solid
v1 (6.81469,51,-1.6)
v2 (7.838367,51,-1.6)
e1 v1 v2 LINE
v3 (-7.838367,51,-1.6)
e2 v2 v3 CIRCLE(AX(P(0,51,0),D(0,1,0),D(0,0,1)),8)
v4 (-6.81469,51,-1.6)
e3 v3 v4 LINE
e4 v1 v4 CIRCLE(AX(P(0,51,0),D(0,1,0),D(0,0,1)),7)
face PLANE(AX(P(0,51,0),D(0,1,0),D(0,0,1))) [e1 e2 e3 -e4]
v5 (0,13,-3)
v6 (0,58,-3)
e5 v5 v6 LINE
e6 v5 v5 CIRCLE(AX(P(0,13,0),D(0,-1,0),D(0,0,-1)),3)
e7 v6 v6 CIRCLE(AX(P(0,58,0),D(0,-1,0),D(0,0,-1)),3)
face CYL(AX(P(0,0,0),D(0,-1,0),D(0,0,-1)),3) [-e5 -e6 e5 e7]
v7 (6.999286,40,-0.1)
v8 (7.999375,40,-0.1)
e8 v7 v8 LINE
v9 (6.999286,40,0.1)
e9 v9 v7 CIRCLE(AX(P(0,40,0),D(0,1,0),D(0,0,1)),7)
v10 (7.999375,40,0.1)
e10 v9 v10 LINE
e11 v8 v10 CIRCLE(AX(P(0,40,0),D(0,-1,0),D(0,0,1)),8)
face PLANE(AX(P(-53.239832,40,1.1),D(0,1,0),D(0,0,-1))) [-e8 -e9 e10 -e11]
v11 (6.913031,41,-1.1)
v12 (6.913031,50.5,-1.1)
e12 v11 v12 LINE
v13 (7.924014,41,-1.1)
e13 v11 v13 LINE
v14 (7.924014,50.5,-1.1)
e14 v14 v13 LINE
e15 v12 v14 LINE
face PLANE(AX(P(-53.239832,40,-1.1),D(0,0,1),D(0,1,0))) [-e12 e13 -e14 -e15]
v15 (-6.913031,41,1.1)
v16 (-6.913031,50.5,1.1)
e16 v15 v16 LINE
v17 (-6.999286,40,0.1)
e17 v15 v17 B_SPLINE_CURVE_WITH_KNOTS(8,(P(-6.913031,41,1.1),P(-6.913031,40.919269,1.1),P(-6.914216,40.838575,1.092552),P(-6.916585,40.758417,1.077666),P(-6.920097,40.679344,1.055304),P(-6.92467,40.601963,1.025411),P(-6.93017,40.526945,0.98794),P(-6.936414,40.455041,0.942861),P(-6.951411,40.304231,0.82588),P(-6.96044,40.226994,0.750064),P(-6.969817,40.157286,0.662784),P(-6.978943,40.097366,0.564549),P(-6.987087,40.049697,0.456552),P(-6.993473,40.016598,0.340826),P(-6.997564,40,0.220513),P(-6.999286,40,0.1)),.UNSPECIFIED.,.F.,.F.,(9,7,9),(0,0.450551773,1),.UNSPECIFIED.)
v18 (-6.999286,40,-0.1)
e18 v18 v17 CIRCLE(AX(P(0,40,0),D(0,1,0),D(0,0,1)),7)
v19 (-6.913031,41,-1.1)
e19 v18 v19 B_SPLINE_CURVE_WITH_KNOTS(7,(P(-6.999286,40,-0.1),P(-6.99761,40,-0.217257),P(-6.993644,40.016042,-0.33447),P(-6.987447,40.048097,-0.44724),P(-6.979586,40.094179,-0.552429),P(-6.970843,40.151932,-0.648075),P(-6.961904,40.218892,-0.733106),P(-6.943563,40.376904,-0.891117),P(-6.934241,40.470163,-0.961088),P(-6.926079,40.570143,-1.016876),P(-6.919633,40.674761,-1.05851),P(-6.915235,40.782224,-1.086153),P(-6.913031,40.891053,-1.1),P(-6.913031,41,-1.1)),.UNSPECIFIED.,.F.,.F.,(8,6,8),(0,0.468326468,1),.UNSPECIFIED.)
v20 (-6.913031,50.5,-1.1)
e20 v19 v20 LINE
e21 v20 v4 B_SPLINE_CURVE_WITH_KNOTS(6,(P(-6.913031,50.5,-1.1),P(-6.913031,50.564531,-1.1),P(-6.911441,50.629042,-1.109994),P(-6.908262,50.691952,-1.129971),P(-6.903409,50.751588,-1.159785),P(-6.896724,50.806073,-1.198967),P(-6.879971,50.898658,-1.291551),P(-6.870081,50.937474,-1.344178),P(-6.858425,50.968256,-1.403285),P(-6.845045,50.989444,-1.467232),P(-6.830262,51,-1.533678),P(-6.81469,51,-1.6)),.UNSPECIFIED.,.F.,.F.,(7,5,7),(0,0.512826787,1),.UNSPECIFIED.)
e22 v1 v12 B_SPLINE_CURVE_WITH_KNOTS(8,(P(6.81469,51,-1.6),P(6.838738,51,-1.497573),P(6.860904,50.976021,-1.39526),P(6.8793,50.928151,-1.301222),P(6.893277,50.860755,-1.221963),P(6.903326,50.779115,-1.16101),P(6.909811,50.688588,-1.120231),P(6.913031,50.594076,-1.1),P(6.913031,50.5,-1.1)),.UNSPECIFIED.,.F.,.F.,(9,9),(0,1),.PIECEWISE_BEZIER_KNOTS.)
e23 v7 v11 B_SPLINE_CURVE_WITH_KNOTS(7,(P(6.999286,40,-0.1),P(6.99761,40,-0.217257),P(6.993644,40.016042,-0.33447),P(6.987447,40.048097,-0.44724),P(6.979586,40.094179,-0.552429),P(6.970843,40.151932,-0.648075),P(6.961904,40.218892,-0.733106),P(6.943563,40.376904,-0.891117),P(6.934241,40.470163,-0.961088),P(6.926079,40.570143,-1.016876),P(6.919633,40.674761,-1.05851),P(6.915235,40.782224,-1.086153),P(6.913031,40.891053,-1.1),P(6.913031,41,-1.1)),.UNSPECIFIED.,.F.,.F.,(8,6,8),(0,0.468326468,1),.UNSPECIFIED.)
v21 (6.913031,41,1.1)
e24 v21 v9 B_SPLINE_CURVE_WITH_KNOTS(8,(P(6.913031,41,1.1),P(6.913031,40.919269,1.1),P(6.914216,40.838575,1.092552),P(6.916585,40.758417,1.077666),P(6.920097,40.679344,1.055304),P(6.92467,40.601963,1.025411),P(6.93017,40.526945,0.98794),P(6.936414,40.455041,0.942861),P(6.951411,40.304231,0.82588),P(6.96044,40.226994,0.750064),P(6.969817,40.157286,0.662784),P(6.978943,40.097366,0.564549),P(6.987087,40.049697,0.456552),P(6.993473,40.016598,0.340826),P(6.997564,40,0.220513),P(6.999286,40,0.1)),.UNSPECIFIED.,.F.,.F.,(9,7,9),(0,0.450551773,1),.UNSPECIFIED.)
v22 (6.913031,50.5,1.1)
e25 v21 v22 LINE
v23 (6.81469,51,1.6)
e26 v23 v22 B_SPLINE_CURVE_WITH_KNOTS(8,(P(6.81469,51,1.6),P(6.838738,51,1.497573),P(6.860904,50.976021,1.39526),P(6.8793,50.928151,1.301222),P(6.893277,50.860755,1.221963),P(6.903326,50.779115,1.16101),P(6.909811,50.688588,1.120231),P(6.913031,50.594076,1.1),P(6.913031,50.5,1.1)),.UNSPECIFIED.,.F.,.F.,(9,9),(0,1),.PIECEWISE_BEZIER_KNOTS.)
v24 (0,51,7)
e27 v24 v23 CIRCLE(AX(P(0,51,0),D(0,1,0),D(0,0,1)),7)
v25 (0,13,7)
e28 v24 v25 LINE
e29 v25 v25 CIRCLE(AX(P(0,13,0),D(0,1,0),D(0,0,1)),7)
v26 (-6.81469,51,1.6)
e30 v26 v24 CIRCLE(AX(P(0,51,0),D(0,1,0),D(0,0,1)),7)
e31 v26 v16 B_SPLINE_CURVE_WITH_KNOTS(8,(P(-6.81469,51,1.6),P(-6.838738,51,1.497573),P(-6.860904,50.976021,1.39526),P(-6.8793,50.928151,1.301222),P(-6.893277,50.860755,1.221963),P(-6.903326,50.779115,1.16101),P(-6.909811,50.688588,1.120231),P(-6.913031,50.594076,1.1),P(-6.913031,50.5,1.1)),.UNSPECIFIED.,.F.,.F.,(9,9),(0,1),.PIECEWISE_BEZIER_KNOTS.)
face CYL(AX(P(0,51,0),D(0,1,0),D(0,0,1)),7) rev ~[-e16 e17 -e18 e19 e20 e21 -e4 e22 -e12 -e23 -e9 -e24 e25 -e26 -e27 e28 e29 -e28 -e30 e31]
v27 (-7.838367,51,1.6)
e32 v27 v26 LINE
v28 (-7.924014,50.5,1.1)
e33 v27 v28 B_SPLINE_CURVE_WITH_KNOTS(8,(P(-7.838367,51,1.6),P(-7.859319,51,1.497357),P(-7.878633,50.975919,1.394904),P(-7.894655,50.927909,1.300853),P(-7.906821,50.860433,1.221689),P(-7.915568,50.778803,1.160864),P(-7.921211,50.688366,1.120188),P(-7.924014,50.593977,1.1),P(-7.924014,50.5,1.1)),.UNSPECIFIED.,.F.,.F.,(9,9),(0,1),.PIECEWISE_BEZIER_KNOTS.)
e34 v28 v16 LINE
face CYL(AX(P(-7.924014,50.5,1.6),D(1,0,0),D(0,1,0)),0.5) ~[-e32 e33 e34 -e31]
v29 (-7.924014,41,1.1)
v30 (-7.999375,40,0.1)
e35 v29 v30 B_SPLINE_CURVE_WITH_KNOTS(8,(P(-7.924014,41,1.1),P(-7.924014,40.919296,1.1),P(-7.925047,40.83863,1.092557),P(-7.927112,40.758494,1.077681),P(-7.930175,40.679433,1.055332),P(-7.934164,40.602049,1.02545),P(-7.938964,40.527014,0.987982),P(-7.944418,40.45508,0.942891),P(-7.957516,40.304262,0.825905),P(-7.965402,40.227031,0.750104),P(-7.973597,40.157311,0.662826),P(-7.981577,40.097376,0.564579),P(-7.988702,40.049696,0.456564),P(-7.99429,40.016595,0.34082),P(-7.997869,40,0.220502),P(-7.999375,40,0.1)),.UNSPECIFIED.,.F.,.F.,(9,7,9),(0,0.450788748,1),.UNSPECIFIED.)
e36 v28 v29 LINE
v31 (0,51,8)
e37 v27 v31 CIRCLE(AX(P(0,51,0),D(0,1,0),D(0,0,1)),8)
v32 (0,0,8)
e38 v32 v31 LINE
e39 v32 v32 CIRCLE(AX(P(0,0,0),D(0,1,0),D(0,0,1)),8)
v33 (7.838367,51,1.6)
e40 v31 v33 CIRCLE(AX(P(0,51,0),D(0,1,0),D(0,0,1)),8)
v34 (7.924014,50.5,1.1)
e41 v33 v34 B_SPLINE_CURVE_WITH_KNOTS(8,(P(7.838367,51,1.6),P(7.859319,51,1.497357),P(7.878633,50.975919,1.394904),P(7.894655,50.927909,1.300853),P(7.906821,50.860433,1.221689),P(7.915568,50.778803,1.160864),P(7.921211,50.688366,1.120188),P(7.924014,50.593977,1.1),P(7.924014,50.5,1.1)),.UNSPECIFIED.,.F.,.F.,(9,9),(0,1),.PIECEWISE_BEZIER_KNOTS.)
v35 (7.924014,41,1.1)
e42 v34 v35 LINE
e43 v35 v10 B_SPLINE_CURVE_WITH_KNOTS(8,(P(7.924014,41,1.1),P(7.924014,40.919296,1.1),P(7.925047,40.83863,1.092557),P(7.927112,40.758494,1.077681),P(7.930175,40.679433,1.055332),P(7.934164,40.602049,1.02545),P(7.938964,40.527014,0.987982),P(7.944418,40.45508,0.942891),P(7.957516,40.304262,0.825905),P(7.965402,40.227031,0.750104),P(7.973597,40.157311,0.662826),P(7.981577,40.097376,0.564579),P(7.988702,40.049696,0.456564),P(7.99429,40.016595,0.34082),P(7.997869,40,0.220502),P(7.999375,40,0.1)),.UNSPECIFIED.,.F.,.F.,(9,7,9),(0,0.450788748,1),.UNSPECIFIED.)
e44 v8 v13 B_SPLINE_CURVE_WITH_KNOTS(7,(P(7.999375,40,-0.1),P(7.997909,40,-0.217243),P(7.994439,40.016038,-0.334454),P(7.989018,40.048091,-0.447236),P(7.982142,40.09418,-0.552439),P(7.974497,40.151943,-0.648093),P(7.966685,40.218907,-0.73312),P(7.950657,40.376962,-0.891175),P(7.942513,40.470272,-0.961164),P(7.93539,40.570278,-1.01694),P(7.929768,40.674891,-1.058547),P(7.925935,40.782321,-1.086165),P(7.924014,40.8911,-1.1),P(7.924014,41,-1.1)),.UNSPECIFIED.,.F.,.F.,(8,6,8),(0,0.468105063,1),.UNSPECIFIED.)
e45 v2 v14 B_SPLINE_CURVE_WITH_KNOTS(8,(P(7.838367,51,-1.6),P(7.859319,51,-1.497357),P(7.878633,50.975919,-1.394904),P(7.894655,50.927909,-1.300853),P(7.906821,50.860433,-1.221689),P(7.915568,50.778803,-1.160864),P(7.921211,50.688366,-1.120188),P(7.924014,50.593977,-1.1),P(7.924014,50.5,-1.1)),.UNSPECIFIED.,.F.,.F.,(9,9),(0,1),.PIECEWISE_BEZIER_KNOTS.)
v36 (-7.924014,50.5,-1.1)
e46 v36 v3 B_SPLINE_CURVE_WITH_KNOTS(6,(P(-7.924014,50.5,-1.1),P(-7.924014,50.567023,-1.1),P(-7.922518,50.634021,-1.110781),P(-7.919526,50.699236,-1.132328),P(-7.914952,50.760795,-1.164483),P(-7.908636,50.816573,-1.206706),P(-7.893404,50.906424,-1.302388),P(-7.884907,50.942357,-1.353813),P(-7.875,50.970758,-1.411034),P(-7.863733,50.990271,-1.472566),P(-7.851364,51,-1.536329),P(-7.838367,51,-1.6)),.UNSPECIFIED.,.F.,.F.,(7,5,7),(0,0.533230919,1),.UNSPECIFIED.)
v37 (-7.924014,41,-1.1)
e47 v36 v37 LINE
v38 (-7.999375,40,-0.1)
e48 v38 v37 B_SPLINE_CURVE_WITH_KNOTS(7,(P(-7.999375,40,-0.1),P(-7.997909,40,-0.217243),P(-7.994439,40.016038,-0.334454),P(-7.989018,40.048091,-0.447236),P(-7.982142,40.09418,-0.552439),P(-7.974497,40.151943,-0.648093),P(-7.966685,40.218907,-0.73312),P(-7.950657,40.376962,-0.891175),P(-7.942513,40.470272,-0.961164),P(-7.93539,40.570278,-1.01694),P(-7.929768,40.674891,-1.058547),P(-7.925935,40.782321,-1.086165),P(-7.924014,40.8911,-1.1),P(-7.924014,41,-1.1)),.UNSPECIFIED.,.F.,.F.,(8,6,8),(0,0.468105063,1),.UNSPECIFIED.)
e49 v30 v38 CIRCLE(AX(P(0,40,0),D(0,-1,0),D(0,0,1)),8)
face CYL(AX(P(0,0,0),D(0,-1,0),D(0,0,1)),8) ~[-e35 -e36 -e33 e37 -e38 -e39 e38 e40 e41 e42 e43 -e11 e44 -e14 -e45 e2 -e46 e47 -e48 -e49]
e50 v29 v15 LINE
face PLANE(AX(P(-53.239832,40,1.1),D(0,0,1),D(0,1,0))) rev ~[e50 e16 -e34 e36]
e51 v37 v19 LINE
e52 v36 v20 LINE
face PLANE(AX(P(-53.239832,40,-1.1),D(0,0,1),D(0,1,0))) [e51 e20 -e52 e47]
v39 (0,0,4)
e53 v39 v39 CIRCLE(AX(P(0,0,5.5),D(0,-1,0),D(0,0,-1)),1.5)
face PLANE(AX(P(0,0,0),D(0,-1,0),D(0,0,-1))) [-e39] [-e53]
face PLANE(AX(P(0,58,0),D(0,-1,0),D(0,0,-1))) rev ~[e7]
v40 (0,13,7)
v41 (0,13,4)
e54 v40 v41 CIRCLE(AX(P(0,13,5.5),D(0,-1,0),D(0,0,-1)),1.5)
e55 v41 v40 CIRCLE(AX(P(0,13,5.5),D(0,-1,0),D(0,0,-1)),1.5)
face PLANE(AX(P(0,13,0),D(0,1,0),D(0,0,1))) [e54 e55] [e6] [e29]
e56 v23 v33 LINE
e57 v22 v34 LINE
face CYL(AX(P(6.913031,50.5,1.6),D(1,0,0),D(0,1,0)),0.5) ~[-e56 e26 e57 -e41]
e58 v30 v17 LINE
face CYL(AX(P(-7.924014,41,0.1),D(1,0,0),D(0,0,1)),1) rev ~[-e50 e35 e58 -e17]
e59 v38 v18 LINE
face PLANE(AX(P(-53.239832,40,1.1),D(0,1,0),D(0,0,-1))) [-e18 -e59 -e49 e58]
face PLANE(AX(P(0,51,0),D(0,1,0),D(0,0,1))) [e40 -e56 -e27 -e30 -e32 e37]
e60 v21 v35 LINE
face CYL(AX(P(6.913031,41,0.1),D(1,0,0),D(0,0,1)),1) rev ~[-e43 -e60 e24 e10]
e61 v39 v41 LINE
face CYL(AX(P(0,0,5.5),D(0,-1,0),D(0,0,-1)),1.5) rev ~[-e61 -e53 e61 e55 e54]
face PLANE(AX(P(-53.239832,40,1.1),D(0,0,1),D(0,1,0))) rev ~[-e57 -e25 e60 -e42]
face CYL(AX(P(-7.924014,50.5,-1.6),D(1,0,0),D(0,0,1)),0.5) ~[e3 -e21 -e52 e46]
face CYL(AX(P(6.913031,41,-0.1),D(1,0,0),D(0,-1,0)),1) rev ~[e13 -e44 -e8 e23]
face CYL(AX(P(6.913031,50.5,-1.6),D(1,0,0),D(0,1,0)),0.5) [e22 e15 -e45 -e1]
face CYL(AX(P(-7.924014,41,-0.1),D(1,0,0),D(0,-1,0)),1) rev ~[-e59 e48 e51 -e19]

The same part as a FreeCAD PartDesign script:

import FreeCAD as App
import Part
import Sketcher
Q = App.Units.Quantity


def edges_at(feature, points):
    """Names of the edges that pass closest to the given points."""
    edges = feature.Shape.Edges
    near = lambda p: min(range(len(edges)), key=lambda i: edges[i].distToShape(Part.Vertex(*p))[0])
    return sorted({f"Edge{near(p) + 1}" for p in points})

doc = App.newDocument("Part")
body = doc.addObject("PartDesign::Body", "Body")

# Sketch on XZ plane
sketch1 = body.newObject("Sketcher::SketchObject", "Sketch")
sketch1.AttachmentSupport = (doc.getObject("XZ_Plane"), [""])
sketch1.MapMode = "FlatFace"
sketch1.addGeometry(Part.Circle(App.Vector(0, 0, 0), App.Vector(0, 0, 1), 8), False)
sketch1.addConstraint(Sketcher.Constraint("Coincident", 0, 3, -1, 1))
sketch1.addConstraint(Sketcher.Constraint("Diameter", 0, Q("16 mm")))
pad1 = body.newObject("PartDesign::Pad", "Pad")
pad1.Profile = sketch1
pad1.Length = 51
pad1.Reversed = True

# Sketch on XZ plane
sketch2 = body.newObject("Sketcher::SketchObject", "Sketch001")
sketch2.AttachmentSupport = (doc.getObject("XZ_Plane"), [""])
sketch2.MapMode = "FlatFace"
sketch2.AttachmentOffset = App.Placement(App.Vector(0, 0, -51), App.Rotation())
sketch2.addGeometry(Part.Circle(App.Vector(0, 0, 0), App.Vector(0, 0, 1), 7), False)
sketch2.addConstraint(Sketcher.Constraint("Coincident", 0, 3, -1, 1))
sketch2.addConstraint(Sketcher.Constraint("Diameter", 0, Q("14 mm")))
pocket1 = body.newObject("PartDesign::Pocket", "Pocket")
pocket1.Profile = sketch2
pocket1.Length = 38
pocket1.Reversed = True

# Sketch on YZ plane
sketch3 = body.newObject("Sketcher::SketchObject", "Sketch002")
sketch3.AttachmentSupport = (doc.getObject("YZ_Plane"), [""])
sketch3.MapMode = "FlatFace"
sketch3.addGeometry(Part.LineSegment(App.Vector(62, 1.1, 0), App.Vector(40, 1.1, 0)), False)
sketch3.addGeometry(Part.LineSegment(App.Vector(40, 1.1, 0), App.Vector(40, -1.1, 0)), False)
sketch3.addGeometry(Part.LineSegment(App.Vector(40, -1.1, 0), App.Vector(62, -1.1, 0)), False)
sketch3.addGeometry(Part.LineSegment(App.Vector(62, -1.1, 0), App.Vector(62, 1.1, 0)), False)
sketch3.addConstraint(Sketcher.Constraint("Coincident", 0, 2, 1, 1))
sketch3.addConstraint(Sketcher.Constraint("Coincident", 1, 2, 2, 1))
sketch3.addConstraint(Sketcher.Constraint("Coincident", 2, 2, 3, 1))
sketch3.addConstraint(Sketcher.Constraint("Coincident", 3, 2, 0, 1))
sketch3.addConstraint(Sketcher.Constraint("Horizontal", 0))
sketch3.addConstraint(Sketcher.Constraint("Vertical", 1))
sketch3.addConstraint(Sketcher.Constraint("Horizontal", 2))
sketch3.addConstraint(Sketcher.Constraint("Vertical", 3))
sketch3.addConstraint(Sketcher.Constraint("DistanceX", 0, 2, 0, 1, Q("22 mm")))
sketch3.addConstraint(Sketcher.Constraint("DistanceY", 1, 2, 1, 1, Q("2.2 mm")))
sketch3.addConstraint(Sketcher.Constraint("DistanceX", -1, 1, 0, 2, Q("40 mm")))
sketch3.addConstraint(Sketcher.Constraint("DistanceY", -1, 1, 0, 2, Q("1.1 mm")))
pocket2 = body.newObject("PartDesign::Pocket", "Pocket001")
pocket2.Profile = sketch3
pocket2.Type = "ThroughAll"
pocket2.Midplane = True
doc.recompute()

fillet = body.newObject("PartDesign::Fillet", "Fillet")
fillet.Base = (pocket2, edges_at(pocket2, [
    (7.419, 51, -1.1),
    (-7.419, 51, -1.1),
    (-7.419, 51, 1.1),
    (7.419, 51, 1.1),
]))
fillet.Radius = 0.5
doc.recompute()

fillet2 = body.newObject("PartDesign::Fillet", "Fillet001")
fillet2.Base = (fillet, edges_at(fillet, [
    (7.419, 40, -1.1),
    (-7.419, 40, -1.1),
    (7.419, 40, 1.1),
    (-7.419, 40, 1.1),
]))
fillet2.Radius = 1

# Sketch on XZ plane
sketch4 = body.newObject("Sketcher::SketchObject", "Sketch003")
sketch4.AttachmentSupport = (doc.getObject("XZ_Plane"), [""])
sketch4.MapMode = "FlatFace"
sketch4.addGeometry(Part.Circle(App.Vector(0, 5.5, 0), App.Vector(0, 0, 1), 1.5), False)
sketch4.addConstraint(Sketcher.Constraint("PointOnObject", 0, 3, -2))
sketch4.addConstraint(Sketcher.Constraint("Diameter", 0, Q("3 mm")))
sketch4.addConstraint(Sketcher.Constraint("DistanceY", -1, 1, 0, 3, Q("5.5 mm")))
pocket3 = body.newObject("PartDesign::Pocket", "Pocket002")
pocket3.Profile = sketch4
pocket3.Length = 38

# Sketch on XZ plane
sketch5 = body.newObject("Sketcher::SketchObject", "Sketch004")
sketch5.AttachmentSupport = (doc.getObject("XZ_Plane"), [""])
sketch5.MapMode = "FlatFace"
sketch5.addGeometry(Part.Circle(App.Vector(0, 0, 0), App.Vector(0, 0, 1), 3), False)
sketch5.addConstraint(Sketcher.Constraint("Coincident", 0, 3, -1, 1))
sketch5.addConstraint(Sketcher.Constraint("Diameter", 0, Q("6 mm")))
pad2 = body.newObject("PartDesign::Pad", "Pad001")
pad2.Profile = sketch5
pad2.Length = 58
pad2.Reversed = True

doc.recompute()
